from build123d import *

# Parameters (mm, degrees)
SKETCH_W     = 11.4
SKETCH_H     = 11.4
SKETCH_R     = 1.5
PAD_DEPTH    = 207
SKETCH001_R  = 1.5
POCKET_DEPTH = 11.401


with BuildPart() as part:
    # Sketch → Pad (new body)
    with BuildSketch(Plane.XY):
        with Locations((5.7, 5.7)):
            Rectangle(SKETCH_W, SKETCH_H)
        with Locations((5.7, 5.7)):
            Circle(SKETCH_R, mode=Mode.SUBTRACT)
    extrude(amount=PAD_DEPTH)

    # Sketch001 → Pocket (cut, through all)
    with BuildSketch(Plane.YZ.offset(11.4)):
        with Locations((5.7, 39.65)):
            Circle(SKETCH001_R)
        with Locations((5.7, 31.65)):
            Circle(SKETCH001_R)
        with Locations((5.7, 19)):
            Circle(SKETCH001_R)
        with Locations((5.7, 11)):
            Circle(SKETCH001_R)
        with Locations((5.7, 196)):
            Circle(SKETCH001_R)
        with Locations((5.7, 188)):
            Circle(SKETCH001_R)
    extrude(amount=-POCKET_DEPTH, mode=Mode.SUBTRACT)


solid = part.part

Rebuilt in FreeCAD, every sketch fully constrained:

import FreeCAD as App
import Part
import Sketcher

V = App.Vector

doc = App.newDocument("Part")
body = doc.addObject("PartDesign::Body", "Body")

# Sketch on XY plane
sketch1 = doc.addObject("Sketcher::SketchObject", "Sketch")
body.addObject(sketch1)
sketch1.AttachmentSupport = (doc.XY_Plane, [""])
sketch1.MapMode = "FlatFace"
sketch1.addGeometry([
    Part.LineSegment(V(0, 11.4, 0), V(0, 0, 0)),  # 0
    Part.LineSegment(V(0, 0, 0), V(11.4, 0, 0)),  # 1
    Part.LineSegment(V(11.4, 0, 0), V(11.4, 11.4, 0)),  # 2
    Part.LineSegment(V(11.4, 11.4, 0), V(0, 11.4, 0)),  # 3
    Part.Circle(V(5.7, 5.7, 0), V(0, 0, 1), 1.5),  # 4
], False)
sketch1.addConstraint([
    Sketcher.Constraint("Coincident", 0, 2, 1, 1),
    Sketcher.Constraint("Coincident", 1, 2, 2, 1),
    Sketcher.Constraint("Coincident", 2, 2, 3, 1),
    Sketcher.Constraint("Coincident", 3, 2, 0, 1),
    Sketcher.Constraint("Vertical", 0),
    Sketcher.Constraint("Horizontal", 1),
    Sketcher.Constraint("Vertical", 2),
    Sketcher.Constraint("Horizontal", 3),
    Sketcher.Constraint("Coincident", 0, 2, -1, 1),
    Sketcher.Constraint("Equal", 3, 0),
    Sketcher.Constraint("Diameter", 4, 3.0),
    Sketcher.Constraint("DistanceX", 1, 1, 1, 2, 11.4),
    Sketcher.Constraint("DistanceX", -1, 1, 4, 3, 5.7),
    Sketcher.Constraint("DistanceY", -1, 1, 4, 3, 5.7),
])
pad1 = doc.addObject("PartDesign::Pad", "Pad")
body.addObject(pad1)
pad1.Profile = sketch1
pad1.Length = 207

# Sketch on YZ plane
sketch2 = doc.addObject("Sketcher::SketchObject", "Sketch001")
body.addObject(sketch2)
sketch2.AttachmentSupport = (doc.YZ_Plane, [""])
sketch2.MapMode = "FlatFace"
sketch2.AttachmentOffset = App.Placement(V(0, 0, 11.4), App.Rotation())
sketch2.addGeometry([
    Part.Circle(V(5.7, 39.6, 0), V(0, 0, 1), 1.5),  # 0
    Part.Circle(V(5.7, 31.6, 0), V(0, 0, 1), 1.5),  # 1
    Part.Circle(V(5.7, 19, 0), V(0, 0, 1), 1.5),  # 2
    Part.Circle(V(5.7, 11, 0), V(0, 0, 1), 1.5),  # 3
    Part.Circle(V(5.7, 196, 0), V(0, 0, 1), 1.5),  # 4
    Part.Circle(V(5.7, 188, 0), V(0, 0, 1), 1.5),  # 5
], False)
sketch2.addConstraint([
    Sketcher.Constraint("Equal", 0, 1),
    Sketcher.Constraint("Equal", 1, 2),
    Sketcher.Constraint("Equal", 2, 3),
    Sketcher.Constraint("Equal", 3, 4),
    Sketcher.Constraint("Equal", 4, 5),
    Sketcher.Constraint("Vertical", 0, 3, 1, 3),
    Sketcher.Constraint("Vertical", 1, 3, 2, 3),
    Sketcher.Constraint("Vertical", 2, 3, 3, 3),
    Sketcher.Constraint("Vertical", 3, 3, 4, 3),
    Sketcher.Constraint("Vertical", 4, 3, 5, 3),
    Sketcher.Constraint("Diameter", 0, 3.0),
    Sketcher.Constraint("DistanceY", -1, 1, 2, 3, 19.0),
    Sketcher.Constraint("DistanceY", -1, 1, 3, 3, 11.0),
    Sketcher.Constraint("DistanceY", -1, 1, 4, 3, 196.0),
    Sketcher.Constraint("DistanceY", -1, 1, 5, 3, 188.0),
    Sketcher.Constraint("DistanceY", 1, 3, 0, 3, 8.0),
    Sketcher.Constraint("DistanceX", -1, 1, 0, 3, 5.7),
    Sketcher.Constraint("DistanceY", -1, 1, 0, 3, 39.65),
])
pocket1 = doc.addObject("PartDesign::Pocket", "Pocket")
body.addObject(pocket1)
pocket1.Profile = sketch2
pocket1.Type = "ThroughAll"

doc.recompute()
